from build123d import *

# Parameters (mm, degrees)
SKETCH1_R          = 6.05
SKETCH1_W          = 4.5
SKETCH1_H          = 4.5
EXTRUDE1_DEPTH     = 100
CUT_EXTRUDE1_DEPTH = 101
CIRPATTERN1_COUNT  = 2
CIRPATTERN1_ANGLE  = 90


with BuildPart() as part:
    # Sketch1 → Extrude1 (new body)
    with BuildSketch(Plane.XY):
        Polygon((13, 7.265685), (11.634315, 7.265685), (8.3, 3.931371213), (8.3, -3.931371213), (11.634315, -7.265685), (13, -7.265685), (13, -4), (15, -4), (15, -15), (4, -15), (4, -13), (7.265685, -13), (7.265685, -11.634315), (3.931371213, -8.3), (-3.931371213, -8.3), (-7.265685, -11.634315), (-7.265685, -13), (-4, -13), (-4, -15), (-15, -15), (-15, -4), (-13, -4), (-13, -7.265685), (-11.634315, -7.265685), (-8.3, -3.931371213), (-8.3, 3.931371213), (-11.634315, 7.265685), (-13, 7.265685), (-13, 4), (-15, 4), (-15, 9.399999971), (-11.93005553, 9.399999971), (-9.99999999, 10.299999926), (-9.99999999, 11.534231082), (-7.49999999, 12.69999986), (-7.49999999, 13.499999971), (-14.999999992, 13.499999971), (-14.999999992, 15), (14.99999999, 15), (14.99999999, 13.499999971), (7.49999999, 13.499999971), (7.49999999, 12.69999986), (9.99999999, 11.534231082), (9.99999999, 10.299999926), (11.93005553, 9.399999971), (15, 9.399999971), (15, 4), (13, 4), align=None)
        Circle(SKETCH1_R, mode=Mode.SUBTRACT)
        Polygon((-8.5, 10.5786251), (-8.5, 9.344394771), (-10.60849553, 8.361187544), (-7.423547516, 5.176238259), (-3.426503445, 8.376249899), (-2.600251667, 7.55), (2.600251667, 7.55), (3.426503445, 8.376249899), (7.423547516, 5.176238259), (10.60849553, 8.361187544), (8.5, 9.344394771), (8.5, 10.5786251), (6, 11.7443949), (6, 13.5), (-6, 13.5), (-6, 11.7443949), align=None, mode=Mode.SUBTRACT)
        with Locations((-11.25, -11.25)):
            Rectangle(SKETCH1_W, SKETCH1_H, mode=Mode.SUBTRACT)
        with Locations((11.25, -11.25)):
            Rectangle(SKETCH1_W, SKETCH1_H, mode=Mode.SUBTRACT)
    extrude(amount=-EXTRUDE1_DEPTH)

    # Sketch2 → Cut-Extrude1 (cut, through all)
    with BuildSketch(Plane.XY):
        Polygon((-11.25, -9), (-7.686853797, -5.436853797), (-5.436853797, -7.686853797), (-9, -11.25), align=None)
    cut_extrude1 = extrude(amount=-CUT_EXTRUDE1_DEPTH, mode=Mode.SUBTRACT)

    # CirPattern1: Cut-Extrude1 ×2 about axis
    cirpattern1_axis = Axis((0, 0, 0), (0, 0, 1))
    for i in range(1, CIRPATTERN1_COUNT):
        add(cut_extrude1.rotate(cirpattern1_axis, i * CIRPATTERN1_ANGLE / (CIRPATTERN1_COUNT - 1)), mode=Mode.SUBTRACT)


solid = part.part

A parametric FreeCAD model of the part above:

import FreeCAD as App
import Part
import Sketcher

V = App.Vector
Q = App.Units.Quantity

doc = App.newDocument("Part")
body = doc.addObject("PartDesign::Body", "Body")

# Sketch on XY plane
sketch1 = body.newObject("Sketcher::SketchObject", "Sketch")
sketch1.AttachmentSupport = (doc.getObject("XY_Plane"), [""])
sketch1.MapMode = "FlatFace"
sketch1.addGeometry([
    Part.LineSegment(V(11.6, 7.3, 0), V(13, 7.3, 0)),  # 0
    Part.LineSegment(V(13, 7.3, 0), V(13, 4, 0)),  # 1
    Part.LineSegment(V(13, 4, 0), V(15, 4, 0)),  # 2
    Part.LineSegment(V(15, 4, 0), V(15, 9.4, 0)),  # 3
    Part.LineSegment(V(15, 9.4, 0), V(11.9, 9.4, 0)),  # 4
    Part.LineSegment(V(11.9, 9.4, 0), V(10, 10.3, 0)),  # 5
    Part.LineSegment(V(10, 10.3, 0), V(10, 11.5, 0)),  # 6
    Part.LineSegment(V(10, 11.5, 0), V(7.5, 12.7, 0)),  # 7
    Part.LineSegment(V(7.5, 12.7, 0), V(7.5, 13.5, 0)),  # 8
    Part.LineSegment(V(7.5, 13.5, 0), V(15, 13.5, 0)),  # 9
    Part.LineSegment(V(15, 13.5, 0), V(15, 15, 0)),  # 10
    Part.LineSegment(V(15, 15, 0), V(-15, 15, 0)),  # 11
    Part.LineSegment(V(-15, 15, 0), V(-15, 13.5, 0)),  # 12
    Part.LineSegment(V(-15, 13.5, 0), V(-7.5, 13.5, 0)),  # 13
    Part.LineSegment(V(-7.5, 13.5, 0), V(-7.5, 12.7, 0)),  # 14
    Part.LineSegment(V(-7.5, 12.7, 0), V(-10, 11.5, 0)),  # 15
    Part.LineSegment(V(-10, 11.5, 0), V(-10, 10.3, 0)),  # 16
    Part.LineSegment(V(-10, 10.3, 0), V(-11.9, 9.4, 0)),  # 17
    Part.LineSegment(V(-11.9, 9.4, 0), V(-15, 9.4, 0)),  # 18
    Part.LineSegment(V(-15, 9.4, 0), V(-15, 4, 0)),  # 19
    Part.LineSegment(V(-15, 4, 0), V(-13, 4, 0)),  # 20
    Part.LineSegment(V(-13, 4, 0), V(-13, 7.3, 0)),  # 21
    Part.LineSegment(V(-13, 7.3, 0), V(-11.6, 7.3, 0)),  # 22
    Part.LineSegment(V(-11.6, 7.3, 0), V(-8.3, 3.9, 0)),  # 23
    Part.LineSegment(V(-8.3, 3.9, 0), V(-8.3, -3.9, 0)),  # 24
    Part.LineSegment(V(-8.3, -3.9, 0), V(-11.6, -7.3, 0)),  # 25
    Part.LineSegment(V(-11.6, -7.3, 0), V(-13, -7.3, 0)),  # 26
    Part.LineSegment(V(-13, -7.3, 0), V(-13, -4, 0)),  # 27
    Part.LineSegment(V(-13, -4, 0), V(-15, -4, 0)),  # 28
    Part.LineSegment(V(-15, -4, 0), V(-15, -15, 0)),  # 29
    Part.LineSegment(V(-15, -15, 0), V(-4, -15, 0)),  # 30
    Part.LineSegment(V(-4, -15, 0), V(-4, -13, 0)),  # 31
    Part.LineSegment(V(-4, -13, 0), V(-7.3, -13, 0)),  # 32
    Part.LineSegment(V(-7.3, -13, 0), V(-7.3, -11.6, 0)),  # 33
    Part.LineSegment(V(-7.3, -11.6, 0), V(-3.9, -8.3, 0)),  # 34
    Part.LineSegment(V(-3.9, -8.3, 0), V(3.9, -8.3, 0)),  # 35
    Part.LineSegment(V(3.9, -8.3, 0), V(7.3, -11.6, 0)),  # 36
    Part.LineSegment(V(7.3, -11.6, 0), V(7.3, -13, 0)),  # 37
    Part.LineSegment(V(7.3, -13, 0), V(4, -13, 0)),  # 38
    Part.LineSegment(V(4, -13, 0), V(4, -15, 0)),  # 39
    Part.LineSegment(V(4, -15, 0), V(15, -15, 0)),  # 40
    Part.LineSegment(V(15, -15, 0), V(15, -4, 0)),  # 41
    Part.LineSegment(V(15, -4, 0), V(13, -4, 0)),  # 42
    Part.LineSegment(V(13, -4, 0), V(13, -7.3, 0)),  # 43
    Part.LineSegment(V(13, -7.3, 0), V(11.6, -7.3, 0)),  # 44
    Part.LineSegment(V(11.6, -7.3, 0), V(8.3, -3.9, 0)),  # 45
    Part.LineSegment(V(8.3, -3.9, 0), V(8.3, 3.9, 0)),  # 46
    Part.LineSegment(V(8.3, 3.9, 0), V(11.6, 7.3, 0)),  # 47
    Part.LineSegment(V(9, -13.5, 0), V(9, -9, 0)),  # 48
    Part.LineSegment(V(9, -9, 0), V(13.5, -9, 0)),  # 49
    Part.LineSegment(V(13.5, -9, 0), V(13.5, -13.5, 0)),  # 50
    Part.LineSegment(V(13.5, -13.5, 0), V(9, -13.5, 0)),  # 51
    Part.LineSegment(V(-13.5, -13.5, 0), V(-13.5, -9, 0)),  # 52
    Part.LineSegment(V(-13.5, -9, 0), V(-9, -9, 0)),  # 53
    Part.LineSegment(V(-9, -9, 0), V(-9, -13.5, 0)),  # 54
    Part.LineSegment(V(-9, -13.5, 0), V(-13.5, -13.5, 0)),  # 55
    Part.Circle(V(0, 0, 0), V(0, 0, 1), 6),  # 56
    Part.LineSegment(V(-8.5, 10.6, 0), V(-6, 11.7, 0)),  # 57
    Part.LineSegment(V(-6, 11.7, 0), V(-6, 13.5, 0)),  # 58
    Part.LineSegment(V(-6, 13.5, 0), V(6, 13.5, 0)),  # 59
    Part.LineSegment(V(6, 13.5, 0), V(6, 11.7, 0)),  # 60
    Part.LineSegment(V(6, 11.7, 0), V(8.5, 10.6, 0)),  # 61
    Part.LineSegment(V(8.5, 10.6, 0), V(8.5, 9.3, 0)),  # 62
    Part.LineSegment(V(8.5, 9.3, 0), V(10.6, 8.4, 0)),  # 63
    Part.LineSegment(V(10.6, 8.4, 0), V(7.4, 5.2, 0)),  # 64
    Part.LineSegment(V(7.4, 5.2, 0), V(3.4, 8.4, 0)),  # 65
    Part.LineSegment(V(3.4, 8.4, 0), V(2.6, 7.5, 0)),  # 66
    Part.LineSegment(V(2.6, 7.5, 0), V(-2.6, 7.5, 0)),  # 67
    Part.LineSegment(V(-2.6, 7.5, 0), V(-3.4, 8.4, 0)),  # 68
    Part.LineSegment(V(-3.4, 8.4, 0), V(-7.4, 5.2, 0)),  # 69
    Part.LineSegment(V(-7.4, 5.2, 0), V(-10.6, 8.4, 0)),  # 70
    Part.LineSegment(V(-10.6, 8.4, 0), V(-8.5, 9.3, 0)),  # 71
    Part.LineSegment(V(-8.5, 9.3, 0), V(-8.5, 10.6, 0)),  # 72
], False)
sketch1.addConstraint([
    Sketcher.Constraint("Coincident", 0, 2, 1, 1),
    Sketcher.Constraint("Coincident", 1, 2, 2, 1),
    Sketcher.Constraint("Coincident", 2, 2, 3, 1),
    Sketcher.Constraint("Coincident", 3, 2, 4, 1),
    Sketcher.Constraint("Coincident", 4, 2, 5, 1),
    Sketcher.Constraint("Coincident", 5, 2, 6, 1),
    Sketcher.Constraint("Coincident", 6, 2, 7, 1),
    Sketcher.Constraint("Coincident", 7, 2, 8, 1),
    Sketcher.Constraint("Coincident", 8, 2, 9, 1),
    Sketcher.Constraint("Coincident", 9, 2, 10, 1),
    Sketcher.Constraint("Coincident", 10, 2, 11, 1),
    Sketcher.Constraint("Coincident", 11, 2, 12, 1),
    Sketcher.Constraint("Coincident", 12, 2, 13, 1),
    Sketcher.Constraint("Coincident", 13, 2, 14, 1),
    Sketcher.Constraint("Coincident", 14, 2, 15, 1),
    Sketcher.Constraint("Coincident", 15, 2, 16, 1),
    Sketcher.Constraint("Coincident", 16, 2, 17, 1),
    Sketcher.Constraint("Coincident", 17, 2, 18, 1),
    Sketcher.Constraint("Coincident", 18, 2, 19, 1),
    Sketcher.Constraint("Coincident", 19, 2, 20, 1),
    Sketcher.Constraint("Coincident", 20, 2, 21, 1),
    Sketcher.Constraint("Coincident", 21, 2, 22, 1),
    Sketcher.Constraint("Coincident", 22, 2, 23, 1),
    Sketcher.Constraint("Coincident", 23, 2, 24, 1),
    Sketcher.Constraint("Coincident", 24, 2, 25, 1),
    Sketcher.Constraint("Coincident", 25, 2, 26, 1),
    Sketcher.Constraint("Coincident", 26, 2, 27, 1),
    Sketcher.Constraint("Coincident", 27, 2, 28, 1),
    Sketcher.Constraint("Coincident", 28, 2, 29, 1),
    Sketcher.Constraint("Coincident", 29, 2, 30, 1),
    Sketcher.Constraint("Coincident", 30, 2, 31, 1),
    Sketcher.Constraint("Coincident", 31, 2, 32, 1),
    Sketcher.Constraint("Coincident", 32, 2, 33, 1),
    Sketcher.Constraint("Coincident", 33, 2, 34, 1),
    Sketcher.Constraint("Coincident", 34, 2, 35, 1),
    Sketcher.Constraint("Coincident", 35, 2, 36, 1),
    Sketcher.Constraint("Coincident", 36, 2, 37, 1),
    Sketcher.Constraint("Coincident", 37, 2, 38, 1),
    Sketcher.Constraint("Coincident", 38, 2, 39, 1),
    Sketcher.Constraint("Coincident", 39, 2, 40, 1),
    Sketcher.Constraint("Coincident", 40, 2, 41, 1),
    Sketcher.Constraint("Coincident", 41, 2, 42, 1),
    Sketcher.Constraint("Coincident", 42, 2, 43, 1),
    Sketcher.Constraint("Coincident", 43, 2, 44, 1),
    Sketcher.Constraint("Coincident", 44, 2, 45, 1),
    Sketcher.Constraint("Coincident", 45, 2, 46, 1),
    Sketcher.Constraint("Coincident", 46, 2, 47, 1),
    Sketcher.Constraint("Coincident", 47, 2, 0, 1),
    Sketcher.Constraint("Coincident", 48, 2, 49, 1),
    Sketcher.Constraint("Coincident", 49, 2, 50, 1),
    Sketcher.Constraint("Coincident", 50, 2, 51, 1),
    Sketcher.Constraint("Coincident", 51, 2, 48, 1),
    Sketcher.Constraint("Coincident", 52, 2, 53, 1),
    Sketcher.Constraint("Coincident", 53, 2, 54, 1),
    Sketcher.Constraint("Coincident", 54, 2, 55, 1),
    Sketcher.Constraint("Coincident", 55, 2, 52, 1),
    Sketcher.Constraint("Coincident", 57, 2, 58, 1),
    Sketcher.Constraint("Coincident", 58, 2, 59, 1),
    Sketcher.Constraint("Coincident", 59, 2, 60, 1),
    Sketcher.Constraint("Coincident", 60, 2, 61, 1),
    Sketcher.Constraint("Coincident", 61, 2, 62, 1),
    Sketcher.Constraint("Coincident", 62, 2, 63, 1),
    Sketcher.Constraint("Coincident", 63, 2, 64, 1),
    Sketcher.Constraint("Coincident", 64, 2, 65, 1),
    Sketcher.Constraint("Coincident", 65, 2, 66, 1),
    Sketcher.Constraint("Coincident", 66, 2, 67, 1),
    Sketcher.Constraint("Coincident", 67, 2, 68, 1),
    Sketcher.Constraint("Coincident", 68, 2, 69, 1),
    Sketcher.Constraint("Coincident", 69, 2, 70, 1),
    Sketcher.Constraint("Coincident", 70, 2, 71, 1),
    Sketcher.Constraint("Coincident", 71, 2, 72, 1),
    Sketcher.Constraint("Coincident", 72, 2, 57, 1),
    Sketcher.Constraint("Horizontal", 0),
    Sketcher.Constraint("Vertical", 1),
    Sketcher.Constraint("Horizontal", 2),
    Sketcher.Constraint("Vertical", 3),
    Sketcher.Constraint("Horizontal", 4),
    Sketcher.Constraint("Vertical", 6),
    Sketcher.Constraint("Vertical", 8),
    Sketcher.Constraint("Horizontal", 9),
    Sketcher.Constraint("Vertical", 10),
    Sketcher.Constraint("Horizontal", 11),
    Sketcher.Constraint("Vertical", 12),
    Sketcher.Constraint("Horizontal", 13),
    Sketcher.Constraint("Vertical", 14),
    Sketcher.Constraint("Vertical", 16),
    Sketcher.Constraint("Horizontal", 18),
    Sketcher.Constraint("Vertical", 19),
    Sketcher.Constraint("Horizontal", 20),
    Sketcher.Constraint("Vertical", 21),
    Sketcher.Constraint("Horizontal", 22),
    Sketcher.Constraint("Vertical", 24),
    Sketcher.Constraint("Horizontal", 26),
    Sketcher.Constraint("Vertical", 27),
    Sketcher.Constraint("Horizontal", 28),
    Sketcher.Constraint("Vertical", 29),
    Sketcher.Constraint("Horizontal", 30),
    Sketcher.Constraint("Vertical", 31),
    Sketcher.Constraint("Horizontal", 32),
    Sketcher.Constraint("Vertical", 33),
    Sketcher.Constraint("Horizontal", 35),
    Sketcher.Constraint("Vertical", 37),
    Sketcher.Constraint("Horizontal", 38),
    Sketcher.Constraint("Vertical", 39),
    Sketcher.Constraint("Horizontal", 40),
    Sketcher.Constraint("Vertical", 41),
    Sketcher.Constraint("Horizontal", 42),
    Sketcher.Constraint("Vertical", 43),
    Sketcher.Constraint("Horizontal", 44),
    Sketcher.Constraint("Vertical", 46),
    Sketcher.Constraint("Vertical", 48),
    Sketcher.Constraint("Horizontal", 49),
    Sketcher.Constraint("Vertical", 50),
    Sketcher.Constraint("Horizontal", 51),
    Sketcher.Constraint("Vertical", 52),
    Sketcher.Constraint("Horizontal", 53),
    Sketcher.Constraint("Vertical", 54),
    Sketcher.Constraint("Horizontal", 55),
    Sketcher.Constraint("Vertical", 58),
    Sketcher.Constraint("Horizontal", 59),
    Sketcher.Constraint("Vertical", 60),
    Sketcher.Constraint("Vertical", 62),
    Sketcher.Constraint("Horizontal", 67),
    Sketcher.Constraint("Vertical", 72),
    Sketcher.Constraint("Coincident", 56, 3, -1, 1),
    Sketcher.Constraint("Symmetric", 0, 2, 26, 2, -1, 1),
    Sketcher.Constraint("Symmetric", 2, 2, 28, 2, -1, 1),
    Sketcher.Constraint("Symmetric", 10, 2, 29, 2, -1, 1),
    Sketcher.Constraint("Symmetric", 11, 2, 40, 2, -1, 1),
    Sketcher.Constraint("Symmetric", 19, 2, 41, 2, -1, 1),
    Sketcher.Constraint("Symmetric", 21, 2, 43, 2, -1, 1),
    Sketcher.Constraint("Symmetric", 23, 2, 45, 2, -1, 1),
    Sketcher.Constraint("Symmetric", 9, 2, 12, 2, -2),
    Sketcher.Constraint("Symmetric", 7, 2, 14, 2, -2),
    Sketcher.Constraint("Symmetric", 6, 2, 15, 2, -2),
    Sketcher.Constraint("Symmetric", 4, 2, 17, 2, -2),
    Sketcher.Constraint("Symmetric", 1, 2, 20, 2, -2),
    Sketcher.Constraint("Symmetric", 33, 2, 36, 2, -2),
    Sketcher.Constraint("Symmetric", 31, 2, 38, 2, -2),
    Sketcher.Constraint("Symmetric", 25, 2, 44, 2, -2),
    Sketcher.Constraint("Symmetric", 49, 2, 52, 2, -2),
    Sketcher.Constraint("Symmetric", 51, 2, 54, 2, -2),
    Sketcher.Constraint("Symmetric", 57, 2, 60, 2, -2),
    Sketcher.Constraint("Symmetric", 65, 2, 68, 2, -2),
    Sketcher.Constraint("Symmetric", 64, 2, 69, 2, -2),
    Sketcher.Constraint("Symmetric", 63, 2, 70, 2, -2),
    Sketcher.Constraint("Symmetric", 62, 2, 71, 2, -2),
    Sketcher.Constraint("Parallel", 5, 7),
    Sketcher.Constraint("Parallel", 15, 17),
    Sketcher.Constraint("Perpendicular", 23, 25),
    Sketcher.Constraint("Parallel", 25, 34),
    Sketcher.Constraint("Perpendicular", 34, 36),
    Sketcher.Constraint("Parallel", 36, 45),
    Sketcher.Constraint("Perpendicular", 45, 47),
    Sketcher.Constraint("Parallel", 17, 57),
    Sketcher.Constraint("Parallel", 7, 61),
    Sketcher.Constraint("Parallel", 61, 63),
    Sketcher.Constraint("Parallel", 47, 64),
    Sketcher.Constraint("Parallel", 64, 66),
    Sketcher.Constraint("Perpendicular", 64, 68),
    Sketcher.Constraint("Parallel", 68, 70),
    Sketcher.Constraint("Horizontal", 23, 2, 46, 2),
    Sketcher.Constraint("Horizontal", 13, 2, 58, 2),
    Sketcher.Constraint("Equal", 38, 1),
    Sketcher.Constraint("Equal", 35, 24),
    Sketcher.Constraint("Equal", 40, 29),
    Sketcher.Constraint("Equal", 42, 31),
    Sketcher.Constraint("Equal", 44, 33),
    Sketcher.Constraint("Equal", 55, 48),
    Sketcher.Constraint("Equal", 16, 62),
    Sketcher.Constraint("Equal", 25, 34),
    Sketcher.Constraint("Equal", 15, 57),
    Sketcher.Constraint("Diameter", 56, Q("12.1 mm")),
    Sketcher.Constraint("DistanceX", 2, 1, 2, 2, Q("2 mm")),
    Sketcher.Constraint("DistanceX", 11, 2, 11, 1, Q("30 mm")),
    Sketcher.Constraint("DistanceX", 30, 1, 30, 2, Q("11 mm")),
    Sketcher.Constraint("DistanceX", 59, 1, 59, 2, Q("12 mm")),
    Sketcher.Constraint("Angle", 5, Q("154.999993 deg")),
    Sketcher.Constraint("DistanceX", 9, 1, 9, 2, Q("7.5 mm")),
    Sketcher.Constraint("DistanceX", 49, 1, 49, 2, Q("4.5 mm")),
    Sketcher.Constraint("DistanceY", 3, 1, 3, 2, Q("5.4 mm")),
    Sketcher.Constraint("DistanceY", 8, 1, 8, 2, Q("0.8 mm")),
    Sketcher.Constraint("DistanceY", 10, 1, 10, 2, Q("1.5 mm")),
    Sketcher.Constraint("DistanceX", -1, 1, 5, 2, Q("10 mm")),
    Sketcher.Constraint("DistanceX", -1, 1, 48, 2, Q("9 mm")),
    Sketcher.Constraint("DistanceY", 48, 2, -1, 1, Q("9 mm")),
    Sketcher.Constraint("DistanceY", -1, 1, 5, 2, Q("10.3 mm")),
    Sketcher.Constraint("DistanceX", 23, 2, -1, 1, Q("8.3 mm")),
    Sketcher.Constraint("DistanceY", -1, 1, 66, 2, Q("7.55 mm")),
    Sketcher.Constraint("Distance", 65, Q("5.120199 mm")),
    Sketcher.Constraint("DistanceX", 0, 1, 0, 2, Q("1.365685 mm")),
    Sketcher.Constraint("DistanceX", 32, 2, 32, 1, Q("3.265685 mm")),
    Sketcher.Constraint("DistanceX", 67, 2, 67, 1, Q("5.200503 mm")),
    Sketcher.Constraint("DistanceY", 58, 1, 58, 2, Q("1.755605 mm")),
    Sketcher.Constraint("DistanceY", -1, 1, 64, 2, Q("5.176238 mm")),
    Sketcher.Constraint("DistanceY", -1, 1, 65, 2, Q("8.37625 mm")),
])
pad1 = body.newObject("PartDesign::Pad", "Pad")
pad1.Profile = sketch1
pad1.Length = 100
pad1.Reversed = True

# Sketch on XY plane
sketch2 = body.newObject("Sketcher::SketchObject", "Sketch001")
sketch2.AttachmentSupport = (doc.getObject("XY_Plane"), [""])
sketch2.MapMode = "FlatFace"
sketch2.addGeometry([
    Part.LineSegment(V(-7.7, -5.4, 0), V(-11.2, -9, 0)),
    Part.LineSegment(V(-11.2, -9, 0), V(-9, -11.2, 0)),
    Part.LineSegment(V(-9, -11.2, 0), V(-5.4, -7.7, 0)),
    Part.LineSegment(V(-5.4, -7.7, 0), V(-7.7, -5.4, 0)),
], False)
sketch2.addConstraint([
    Sketcher.Constraint("Coincident", 0, 2, 1, 1),
    Sketcher.Constraint("Coincident", 1, 2, 2, 1),
    Sketcher.Constraint("Coincident", 2, 2, 3, 1),
    Sketcher.Constraint("Coincident", 3, 2, 0, 1),
    Sketcher.Constraint("Perpendicular", 0, 1),
    Sketcher.Constraint("Perpendicular", 1, 2),
    Sketcher.Constraint("Perpendicular", 2, 3),
    Sketcher.Constraint("Angle", 0, Q("-135 deg")),
    Sketcher.Constraint("DistanceY", 0, 2, -1, 1, Q("9 mm")),
    Sketcher.Constraint("DistanceX", 1, 2, -1, 1, Q("9 mm")),
    Sketcher.Constraint("DistanceX", 0, 2, -1, 1, Q("11.25 mm")),
    Sketcher.Constraint("Distance", 0, Q("5.03905 mm")),
])
pocket1 = body.newObject("PartDesign::Pocket", "Pocket")
pocket1.Profile = sketch2
pocket1.Type = "ThroughAll"
doc.recompute()

polarpattern = body.newObject("PartDesign::PolarPattern", "PolarPattern")
polarpattern.Originals = [pocket1]
polarpattern.Axis = (doc.getObject("Z_Axis"), [""])
polarpattern.Angle = 90
polarpattern.Occurrences = 2
body.Tip = polarpattern

doc.recompute()
